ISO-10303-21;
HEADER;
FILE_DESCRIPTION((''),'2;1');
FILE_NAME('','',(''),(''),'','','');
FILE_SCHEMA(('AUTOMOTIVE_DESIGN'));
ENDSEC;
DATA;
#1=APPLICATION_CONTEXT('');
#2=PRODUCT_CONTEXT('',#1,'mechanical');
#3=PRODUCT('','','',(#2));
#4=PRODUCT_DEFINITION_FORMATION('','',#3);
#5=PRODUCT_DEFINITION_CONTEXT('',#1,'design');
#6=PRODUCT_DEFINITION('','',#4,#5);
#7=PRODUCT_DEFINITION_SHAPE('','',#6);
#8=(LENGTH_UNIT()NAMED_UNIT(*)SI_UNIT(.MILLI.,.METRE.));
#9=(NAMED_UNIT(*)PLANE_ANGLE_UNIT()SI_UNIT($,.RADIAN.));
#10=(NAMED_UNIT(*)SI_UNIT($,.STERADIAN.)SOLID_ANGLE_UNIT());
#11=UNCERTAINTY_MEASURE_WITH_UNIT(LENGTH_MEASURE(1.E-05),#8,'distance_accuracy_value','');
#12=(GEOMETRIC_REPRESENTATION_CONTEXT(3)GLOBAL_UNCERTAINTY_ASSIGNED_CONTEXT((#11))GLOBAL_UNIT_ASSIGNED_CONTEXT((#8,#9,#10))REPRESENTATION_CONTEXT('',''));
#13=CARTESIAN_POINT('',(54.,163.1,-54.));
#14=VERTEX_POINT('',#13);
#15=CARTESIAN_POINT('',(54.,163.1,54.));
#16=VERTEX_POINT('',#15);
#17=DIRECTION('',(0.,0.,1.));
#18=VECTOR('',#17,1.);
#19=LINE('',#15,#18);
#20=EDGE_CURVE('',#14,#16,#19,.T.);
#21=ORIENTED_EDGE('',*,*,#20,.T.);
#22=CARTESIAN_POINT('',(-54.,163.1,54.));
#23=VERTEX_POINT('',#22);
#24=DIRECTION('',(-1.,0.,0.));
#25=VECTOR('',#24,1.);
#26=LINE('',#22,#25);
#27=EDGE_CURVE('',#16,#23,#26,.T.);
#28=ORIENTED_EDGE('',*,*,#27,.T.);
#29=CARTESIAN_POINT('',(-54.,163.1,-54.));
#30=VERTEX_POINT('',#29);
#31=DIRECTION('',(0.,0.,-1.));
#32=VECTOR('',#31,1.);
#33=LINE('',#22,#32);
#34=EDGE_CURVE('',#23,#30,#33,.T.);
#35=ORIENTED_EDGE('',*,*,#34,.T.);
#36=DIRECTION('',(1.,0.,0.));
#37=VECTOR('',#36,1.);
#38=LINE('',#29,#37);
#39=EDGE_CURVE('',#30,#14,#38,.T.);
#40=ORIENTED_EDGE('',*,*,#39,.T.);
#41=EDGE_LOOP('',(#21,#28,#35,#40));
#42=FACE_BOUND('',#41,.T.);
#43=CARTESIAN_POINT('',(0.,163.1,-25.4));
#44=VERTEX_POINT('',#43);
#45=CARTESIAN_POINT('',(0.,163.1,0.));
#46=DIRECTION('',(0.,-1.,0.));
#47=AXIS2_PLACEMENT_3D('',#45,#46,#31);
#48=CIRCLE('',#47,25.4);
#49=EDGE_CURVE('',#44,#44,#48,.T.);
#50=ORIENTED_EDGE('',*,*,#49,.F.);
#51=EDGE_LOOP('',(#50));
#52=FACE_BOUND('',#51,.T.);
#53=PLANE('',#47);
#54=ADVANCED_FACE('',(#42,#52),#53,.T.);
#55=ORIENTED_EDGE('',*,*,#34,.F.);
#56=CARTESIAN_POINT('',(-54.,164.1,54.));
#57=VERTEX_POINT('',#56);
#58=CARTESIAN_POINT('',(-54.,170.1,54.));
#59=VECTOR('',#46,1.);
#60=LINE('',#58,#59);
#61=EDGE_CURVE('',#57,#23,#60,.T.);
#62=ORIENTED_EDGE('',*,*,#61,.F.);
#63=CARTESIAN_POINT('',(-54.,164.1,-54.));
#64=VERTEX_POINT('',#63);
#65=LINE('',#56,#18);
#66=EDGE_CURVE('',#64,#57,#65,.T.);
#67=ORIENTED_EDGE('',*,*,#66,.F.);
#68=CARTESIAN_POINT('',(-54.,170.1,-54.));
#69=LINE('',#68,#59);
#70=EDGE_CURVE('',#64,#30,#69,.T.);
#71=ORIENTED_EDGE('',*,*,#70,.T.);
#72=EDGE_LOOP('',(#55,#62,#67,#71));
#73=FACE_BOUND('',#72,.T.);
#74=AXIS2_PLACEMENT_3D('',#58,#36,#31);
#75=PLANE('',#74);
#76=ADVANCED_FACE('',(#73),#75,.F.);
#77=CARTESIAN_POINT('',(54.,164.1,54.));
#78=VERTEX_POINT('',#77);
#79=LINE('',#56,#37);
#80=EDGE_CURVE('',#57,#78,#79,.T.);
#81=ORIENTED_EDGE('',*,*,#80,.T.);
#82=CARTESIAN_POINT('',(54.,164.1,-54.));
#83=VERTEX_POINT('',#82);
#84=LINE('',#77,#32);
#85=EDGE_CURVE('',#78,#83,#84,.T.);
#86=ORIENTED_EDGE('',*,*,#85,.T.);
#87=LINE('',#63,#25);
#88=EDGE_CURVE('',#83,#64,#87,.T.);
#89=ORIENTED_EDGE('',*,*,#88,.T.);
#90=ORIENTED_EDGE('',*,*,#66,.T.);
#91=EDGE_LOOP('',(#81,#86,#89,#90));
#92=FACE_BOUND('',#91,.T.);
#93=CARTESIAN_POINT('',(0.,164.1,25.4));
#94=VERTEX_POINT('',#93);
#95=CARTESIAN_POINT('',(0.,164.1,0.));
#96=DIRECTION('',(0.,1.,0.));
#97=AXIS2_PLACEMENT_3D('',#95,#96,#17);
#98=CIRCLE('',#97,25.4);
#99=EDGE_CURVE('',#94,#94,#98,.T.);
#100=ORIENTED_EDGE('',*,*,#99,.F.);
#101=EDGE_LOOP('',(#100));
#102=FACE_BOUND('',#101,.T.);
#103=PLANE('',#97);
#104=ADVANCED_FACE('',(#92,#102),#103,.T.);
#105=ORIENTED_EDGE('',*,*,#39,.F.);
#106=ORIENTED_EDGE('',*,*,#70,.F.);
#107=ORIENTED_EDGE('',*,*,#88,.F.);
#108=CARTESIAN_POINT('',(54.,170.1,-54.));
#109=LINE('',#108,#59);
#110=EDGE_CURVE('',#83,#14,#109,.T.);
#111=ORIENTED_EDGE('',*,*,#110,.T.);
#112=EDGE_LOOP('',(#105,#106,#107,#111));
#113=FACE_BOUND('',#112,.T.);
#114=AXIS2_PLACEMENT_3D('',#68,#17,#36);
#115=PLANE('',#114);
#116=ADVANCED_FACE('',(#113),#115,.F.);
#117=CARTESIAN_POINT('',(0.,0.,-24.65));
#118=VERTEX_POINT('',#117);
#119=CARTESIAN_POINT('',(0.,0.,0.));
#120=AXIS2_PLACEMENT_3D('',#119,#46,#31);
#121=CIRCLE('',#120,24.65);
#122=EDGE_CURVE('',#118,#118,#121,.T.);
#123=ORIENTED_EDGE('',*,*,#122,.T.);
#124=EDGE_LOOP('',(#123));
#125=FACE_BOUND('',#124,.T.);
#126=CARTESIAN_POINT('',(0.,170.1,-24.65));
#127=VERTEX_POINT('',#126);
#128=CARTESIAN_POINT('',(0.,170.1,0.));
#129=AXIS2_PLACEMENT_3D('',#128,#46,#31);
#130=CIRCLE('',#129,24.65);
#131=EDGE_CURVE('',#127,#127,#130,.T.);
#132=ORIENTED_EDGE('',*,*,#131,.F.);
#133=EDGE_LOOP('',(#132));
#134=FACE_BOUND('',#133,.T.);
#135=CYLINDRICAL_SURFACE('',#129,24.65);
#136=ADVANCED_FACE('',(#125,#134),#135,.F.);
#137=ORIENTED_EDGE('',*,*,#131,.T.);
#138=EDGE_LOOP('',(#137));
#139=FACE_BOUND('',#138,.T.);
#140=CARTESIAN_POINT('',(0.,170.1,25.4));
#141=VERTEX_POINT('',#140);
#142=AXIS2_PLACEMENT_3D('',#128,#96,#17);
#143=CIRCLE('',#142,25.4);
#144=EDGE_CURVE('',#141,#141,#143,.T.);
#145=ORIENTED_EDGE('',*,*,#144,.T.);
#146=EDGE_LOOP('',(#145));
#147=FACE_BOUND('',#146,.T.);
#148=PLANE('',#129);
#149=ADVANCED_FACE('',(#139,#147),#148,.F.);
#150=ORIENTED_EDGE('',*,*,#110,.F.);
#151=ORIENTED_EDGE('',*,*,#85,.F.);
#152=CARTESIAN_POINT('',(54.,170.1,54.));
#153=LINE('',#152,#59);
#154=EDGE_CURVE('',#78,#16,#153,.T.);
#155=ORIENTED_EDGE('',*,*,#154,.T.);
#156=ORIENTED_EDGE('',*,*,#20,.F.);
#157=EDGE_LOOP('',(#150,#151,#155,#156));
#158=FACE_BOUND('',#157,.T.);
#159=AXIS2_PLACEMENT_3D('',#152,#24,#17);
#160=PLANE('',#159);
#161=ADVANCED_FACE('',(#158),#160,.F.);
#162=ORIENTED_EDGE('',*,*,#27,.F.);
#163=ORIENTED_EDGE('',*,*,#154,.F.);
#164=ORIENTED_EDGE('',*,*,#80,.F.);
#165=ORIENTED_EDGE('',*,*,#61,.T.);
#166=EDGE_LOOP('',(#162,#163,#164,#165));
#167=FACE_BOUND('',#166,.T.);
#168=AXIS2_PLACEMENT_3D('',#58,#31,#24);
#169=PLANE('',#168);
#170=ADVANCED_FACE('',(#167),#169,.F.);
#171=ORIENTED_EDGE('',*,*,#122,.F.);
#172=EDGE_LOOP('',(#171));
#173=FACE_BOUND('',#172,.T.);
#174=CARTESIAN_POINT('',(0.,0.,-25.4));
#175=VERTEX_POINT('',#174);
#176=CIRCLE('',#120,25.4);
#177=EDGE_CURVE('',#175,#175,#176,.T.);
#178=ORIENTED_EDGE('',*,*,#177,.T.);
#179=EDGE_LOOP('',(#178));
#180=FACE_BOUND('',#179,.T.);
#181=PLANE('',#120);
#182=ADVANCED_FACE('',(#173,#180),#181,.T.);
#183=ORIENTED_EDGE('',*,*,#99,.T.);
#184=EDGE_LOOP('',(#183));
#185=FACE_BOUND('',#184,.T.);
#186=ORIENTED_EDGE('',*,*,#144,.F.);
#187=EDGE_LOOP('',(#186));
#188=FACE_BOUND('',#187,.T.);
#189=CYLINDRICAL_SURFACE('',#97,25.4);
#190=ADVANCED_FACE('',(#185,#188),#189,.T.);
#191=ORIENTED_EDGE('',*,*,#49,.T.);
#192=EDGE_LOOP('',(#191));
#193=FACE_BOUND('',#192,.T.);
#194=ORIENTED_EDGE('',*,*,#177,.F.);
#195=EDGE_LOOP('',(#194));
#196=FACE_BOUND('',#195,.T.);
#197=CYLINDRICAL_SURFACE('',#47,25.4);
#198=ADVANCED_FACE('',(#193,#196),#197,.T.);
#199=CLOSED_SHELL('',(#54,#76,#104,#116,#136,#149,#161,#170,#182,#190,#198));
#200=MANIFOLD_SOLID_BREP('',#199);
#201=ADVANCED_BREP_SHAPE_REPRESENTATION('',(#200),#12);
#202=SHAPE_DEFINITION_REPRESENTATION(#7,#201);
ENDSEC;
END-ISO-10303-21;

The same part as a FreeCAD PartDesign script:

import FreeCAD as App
import Part
import Sketcher
Q = App.Units.Quantity

doc = App.newDocument("Part")
body = doc.addObject("PartDesign::Body", "Body")

# Sketch on XZ plane
sketch1 = doc.addObject("Sketcher::SketchObject", "Sketch")
body.addObject(sketch1)
sketch1.AttachmentSupport = (doc.XZ_Plane, [""])
sketch1.MapMode = "FlatFace"
sketch1.addGeometry(Part.LineSegment(App.Vector(-54, -54, 0), App.Vector(-54, 54, 0)), False)
sketch1.addGeometry(Part.LineSegment(App.Vector(-54, 54, 0), App.Vector(54, 54, 0)), False)
sketch1.addGeometry(Part.LineSegment(App.Vector(54, 54, 0), App.Vector(54, -54, 0)), False)
sketch1.addGeometry(Part.LineSegment(App.Vector(54, -54, 0), App.Vector(-54, -54, 0)), False)
sketch1.addConstraint(Sketcher.Constraint("Coincident", 0, 2, 1, 1))
sketch1.addConstraint(Sketcher.Constraint("Coincident", 1, 2, 2, 1))
sketch1.addConstraint(Sketcher.Constraint("Coincident", 2, 2, 3, 1))
sketch1.addConstraint(Sketcher.Constraint("Coincident", 3, 2, 0, 1))
sketch1.addConstraint(Sketcher.Constraint("Vertical", 0))
sketch1.addConstraint(Sketcher.Constraint("Horizontal", 1))
sketch1.addConstraint(Sketcher.Constraint("Vertical", 2))
sketch1.addConstraint(Sketcher.Constraint("Horizontal", 3))
sketch1.addConstraint(Sketcher.Constraint("Symmetric", 0, 2, 2, 2, -1, 1))
sketch1.addConstraint(Sketcher.Constraint("Equal", 3, 0))
sketch1.addConstraint(Sketcher.Constraint("DistanceX", 1, 1, 1, 2, Q("108 mm")))
pad1 = doc.addObject("PartDesign::Pad", "Pad")
body.addObject(pad1)
pad1.Profile = sketch1
pad1.Length = 170.1
pad1.Reversed = True

# Sketch on XZ plane
sketch2 = doc.addObject("Sketcher::SketchObject", "Sketch001")
body.addObject(sketch2)
sketch2.AttachmentSupport = (doc.XZ_Plane, [""])
sketch2.MapMode = "FlatFace"
sketch2.AttachmentOffset = App.Placement(App.Vector(0, 0, -170.1), App.Rotation())
sketch2.addGeometry(Part.LineSegment(App.Vector(-78, -78, 0), App.Vector(-78, 78, 0)), False)
sketch2.addGeometry(Part.LineSegment(App.Vector(-78, 78, 0), App.Vector(78, 78, 0)), False)
sketch2.addGeometry(Part.LineSegment(App.Vector(78, 78, 0), App.Vector(78, -78, 0)), False)
sketch2.addGeometry(Part.LineSegment(App.Vector(78, -78, 0), App.Vector(-78, -78, 0)), False)
sketch2.addGeometry(Part.Circle(App.Vector(0, 0, 0), App.Vector(0, 0, 1), 25), False)
sketch2.addConstraint(Sketcher.Constraint("Coincident", 0, 2, 1, 1))
sketch2.addConstraint(Sketcher.Constraint("Coincident", 1, 2, 2, 1))
sketch2.addConstraint(Sketcher.Constraint("Coincident", 2, 2, 3, 1))
sketch2.addConstraint(Sketcher.Constraint("Coincident", 3, 2, 0, 1))
sketch2.addConstraint(Sketcher.Constraint("Vertical", 0))
sketch2.addConstraint(Sketcher.Constraint("Horizontal", 1))
sketch2.addConstraint(Sketcher.Constraint("Vertical", 2))
sketch2.addConstraint(Sketcher.Constraint("Horizontal", 3))
sketch2.addConstraint(Sketcher.Constraint("Coincident", 4, 3, -1, 1))
sketch2.addConstraint(Sketcher.Constraint("Symmetric", 0, 2, 2, 2, -1, 1))
sketch2.addConstraint(Sketcher.Constraint("Equal", 3, 0))
sketch2.addConstraint(Sketcher.Constraint("Diameter", 4, Q("50.8 mm")))
sketch2.addConstraint(Sketcher.Constraint("DistanceX", 1, 1, 1, 2, Q("155.722 mm")))
pocket1 = doc.addObject("PartDesign::Pocket", "Pocket")
body.addObject(pocket1)
pocket1.Profile = sketch2
pocket1.Length = 6
pocket1.Reversed = True

# Sketch on XZ plane
sketch3 = doc.addObject("Sketcher::SketchObject", "Sketch002")
body.addObject(sketch3)
sketch3.AttachmentSupport = (doc.XZ_Plane, [""])
sketch3.MapMode = "FlatFace"
sketch3.addGeometry(Part.LineSegment(App.Vector(-78, 78, 0), App.Vector(-78, -78, 0)), False)
sketch3.addGeometry(Part.LineSegment(App.Vector(-78, -78, 0), App.Vector(78, -78, 0)), False)
sketch3.addGeometry(Part.LineSegment(App.Vector(78, -78, 0), App.Vector(78, 78, 0)), False)
sketch3.addGeometry(Part.LineSegment(App.Vector(78, 78, 0), App.Vector(-78, 78, 0)), False)
sketch3.addGeometry(Part.Circle(App.Vector(0, 0, 0), App.Vector(0, 0, 1), 25), False)
sketch3.addConstraint(Sketcher.Constraint("Coincident", 0, 2, 1, 1))
sketch3.addConstraint(Sketcher.Constraint("Coincident", 1, 2, 2, 1))
sketch3.addConstraint(Sketcher.Constraint("Coincident", 2, 2, 3, 1))
sketch3.addConstraint(Sketcher.Constraint("Coincident", 3, 2, 0, 1))
sketch3.addConstraint(Sketcher.Constraint("Vertical", 0))
sketch3.addConstraint(Sketcher.Constraint("Horizontal", 1))
sketch3.addConstraint(Sketcher.Constraint("Vertical", 2))
sketch3.addConstraint(Sketcher.Constraint("Horizontal", 3))
sketch3.addConstraint(Sketcher.Constraint("Coincident", 4, 3, -1, 1))
sketch3.addConstraint(Sketcher.Constraint("Symmetric", 0, 2, 2, 2, -1, 1))
sketch3.addConstraint(Sketcher.Constraint("Equal", 3, 0))
sketch3.addConstraint(Sketcher.Constraint("Diameter", 4, Q("50.8 mm")))
sketch3.addConstraint(Sketcher.Constraint("DistanceX", 1, 1, 1, 2, Q("155.722 mm")))
pocket2 = doc.addObject("PartDesign::Pocket", "Pocket001")
body.addObject(pocket2)
pocket2.Profile = sketch3
pocket2.Length = 163.1

# Sketch on XZ plane
sketch4 = doc.addObject("Sketcher::SketchObject", "Sketch003")
body.addObject(sketch4)
sketch4.AttachmentSupport = (doc.XZ_Plane, [""])
sketch4.MapMode = "FlatFace"
sketch4.addGeometry(Part.Circle(App.Vector(0, 0, 0), App.Vector(0, 0, 1), 25), False)
sketch4.addConstraint(Sketcher.Constraint("Coincident", 0, 3, -1, 1))
sketch4.addConstraint(Sketcher.Constraint("Diameter", 0, Q("49.3 mm")))
pocket3 = doc.addObject("PartDesign::Pocket", "Pocket002")
body.addObject(pocket3)
pocket3.Profile = sketch4
pocket3.Type = "ThroughAll"

doc.recompute()
